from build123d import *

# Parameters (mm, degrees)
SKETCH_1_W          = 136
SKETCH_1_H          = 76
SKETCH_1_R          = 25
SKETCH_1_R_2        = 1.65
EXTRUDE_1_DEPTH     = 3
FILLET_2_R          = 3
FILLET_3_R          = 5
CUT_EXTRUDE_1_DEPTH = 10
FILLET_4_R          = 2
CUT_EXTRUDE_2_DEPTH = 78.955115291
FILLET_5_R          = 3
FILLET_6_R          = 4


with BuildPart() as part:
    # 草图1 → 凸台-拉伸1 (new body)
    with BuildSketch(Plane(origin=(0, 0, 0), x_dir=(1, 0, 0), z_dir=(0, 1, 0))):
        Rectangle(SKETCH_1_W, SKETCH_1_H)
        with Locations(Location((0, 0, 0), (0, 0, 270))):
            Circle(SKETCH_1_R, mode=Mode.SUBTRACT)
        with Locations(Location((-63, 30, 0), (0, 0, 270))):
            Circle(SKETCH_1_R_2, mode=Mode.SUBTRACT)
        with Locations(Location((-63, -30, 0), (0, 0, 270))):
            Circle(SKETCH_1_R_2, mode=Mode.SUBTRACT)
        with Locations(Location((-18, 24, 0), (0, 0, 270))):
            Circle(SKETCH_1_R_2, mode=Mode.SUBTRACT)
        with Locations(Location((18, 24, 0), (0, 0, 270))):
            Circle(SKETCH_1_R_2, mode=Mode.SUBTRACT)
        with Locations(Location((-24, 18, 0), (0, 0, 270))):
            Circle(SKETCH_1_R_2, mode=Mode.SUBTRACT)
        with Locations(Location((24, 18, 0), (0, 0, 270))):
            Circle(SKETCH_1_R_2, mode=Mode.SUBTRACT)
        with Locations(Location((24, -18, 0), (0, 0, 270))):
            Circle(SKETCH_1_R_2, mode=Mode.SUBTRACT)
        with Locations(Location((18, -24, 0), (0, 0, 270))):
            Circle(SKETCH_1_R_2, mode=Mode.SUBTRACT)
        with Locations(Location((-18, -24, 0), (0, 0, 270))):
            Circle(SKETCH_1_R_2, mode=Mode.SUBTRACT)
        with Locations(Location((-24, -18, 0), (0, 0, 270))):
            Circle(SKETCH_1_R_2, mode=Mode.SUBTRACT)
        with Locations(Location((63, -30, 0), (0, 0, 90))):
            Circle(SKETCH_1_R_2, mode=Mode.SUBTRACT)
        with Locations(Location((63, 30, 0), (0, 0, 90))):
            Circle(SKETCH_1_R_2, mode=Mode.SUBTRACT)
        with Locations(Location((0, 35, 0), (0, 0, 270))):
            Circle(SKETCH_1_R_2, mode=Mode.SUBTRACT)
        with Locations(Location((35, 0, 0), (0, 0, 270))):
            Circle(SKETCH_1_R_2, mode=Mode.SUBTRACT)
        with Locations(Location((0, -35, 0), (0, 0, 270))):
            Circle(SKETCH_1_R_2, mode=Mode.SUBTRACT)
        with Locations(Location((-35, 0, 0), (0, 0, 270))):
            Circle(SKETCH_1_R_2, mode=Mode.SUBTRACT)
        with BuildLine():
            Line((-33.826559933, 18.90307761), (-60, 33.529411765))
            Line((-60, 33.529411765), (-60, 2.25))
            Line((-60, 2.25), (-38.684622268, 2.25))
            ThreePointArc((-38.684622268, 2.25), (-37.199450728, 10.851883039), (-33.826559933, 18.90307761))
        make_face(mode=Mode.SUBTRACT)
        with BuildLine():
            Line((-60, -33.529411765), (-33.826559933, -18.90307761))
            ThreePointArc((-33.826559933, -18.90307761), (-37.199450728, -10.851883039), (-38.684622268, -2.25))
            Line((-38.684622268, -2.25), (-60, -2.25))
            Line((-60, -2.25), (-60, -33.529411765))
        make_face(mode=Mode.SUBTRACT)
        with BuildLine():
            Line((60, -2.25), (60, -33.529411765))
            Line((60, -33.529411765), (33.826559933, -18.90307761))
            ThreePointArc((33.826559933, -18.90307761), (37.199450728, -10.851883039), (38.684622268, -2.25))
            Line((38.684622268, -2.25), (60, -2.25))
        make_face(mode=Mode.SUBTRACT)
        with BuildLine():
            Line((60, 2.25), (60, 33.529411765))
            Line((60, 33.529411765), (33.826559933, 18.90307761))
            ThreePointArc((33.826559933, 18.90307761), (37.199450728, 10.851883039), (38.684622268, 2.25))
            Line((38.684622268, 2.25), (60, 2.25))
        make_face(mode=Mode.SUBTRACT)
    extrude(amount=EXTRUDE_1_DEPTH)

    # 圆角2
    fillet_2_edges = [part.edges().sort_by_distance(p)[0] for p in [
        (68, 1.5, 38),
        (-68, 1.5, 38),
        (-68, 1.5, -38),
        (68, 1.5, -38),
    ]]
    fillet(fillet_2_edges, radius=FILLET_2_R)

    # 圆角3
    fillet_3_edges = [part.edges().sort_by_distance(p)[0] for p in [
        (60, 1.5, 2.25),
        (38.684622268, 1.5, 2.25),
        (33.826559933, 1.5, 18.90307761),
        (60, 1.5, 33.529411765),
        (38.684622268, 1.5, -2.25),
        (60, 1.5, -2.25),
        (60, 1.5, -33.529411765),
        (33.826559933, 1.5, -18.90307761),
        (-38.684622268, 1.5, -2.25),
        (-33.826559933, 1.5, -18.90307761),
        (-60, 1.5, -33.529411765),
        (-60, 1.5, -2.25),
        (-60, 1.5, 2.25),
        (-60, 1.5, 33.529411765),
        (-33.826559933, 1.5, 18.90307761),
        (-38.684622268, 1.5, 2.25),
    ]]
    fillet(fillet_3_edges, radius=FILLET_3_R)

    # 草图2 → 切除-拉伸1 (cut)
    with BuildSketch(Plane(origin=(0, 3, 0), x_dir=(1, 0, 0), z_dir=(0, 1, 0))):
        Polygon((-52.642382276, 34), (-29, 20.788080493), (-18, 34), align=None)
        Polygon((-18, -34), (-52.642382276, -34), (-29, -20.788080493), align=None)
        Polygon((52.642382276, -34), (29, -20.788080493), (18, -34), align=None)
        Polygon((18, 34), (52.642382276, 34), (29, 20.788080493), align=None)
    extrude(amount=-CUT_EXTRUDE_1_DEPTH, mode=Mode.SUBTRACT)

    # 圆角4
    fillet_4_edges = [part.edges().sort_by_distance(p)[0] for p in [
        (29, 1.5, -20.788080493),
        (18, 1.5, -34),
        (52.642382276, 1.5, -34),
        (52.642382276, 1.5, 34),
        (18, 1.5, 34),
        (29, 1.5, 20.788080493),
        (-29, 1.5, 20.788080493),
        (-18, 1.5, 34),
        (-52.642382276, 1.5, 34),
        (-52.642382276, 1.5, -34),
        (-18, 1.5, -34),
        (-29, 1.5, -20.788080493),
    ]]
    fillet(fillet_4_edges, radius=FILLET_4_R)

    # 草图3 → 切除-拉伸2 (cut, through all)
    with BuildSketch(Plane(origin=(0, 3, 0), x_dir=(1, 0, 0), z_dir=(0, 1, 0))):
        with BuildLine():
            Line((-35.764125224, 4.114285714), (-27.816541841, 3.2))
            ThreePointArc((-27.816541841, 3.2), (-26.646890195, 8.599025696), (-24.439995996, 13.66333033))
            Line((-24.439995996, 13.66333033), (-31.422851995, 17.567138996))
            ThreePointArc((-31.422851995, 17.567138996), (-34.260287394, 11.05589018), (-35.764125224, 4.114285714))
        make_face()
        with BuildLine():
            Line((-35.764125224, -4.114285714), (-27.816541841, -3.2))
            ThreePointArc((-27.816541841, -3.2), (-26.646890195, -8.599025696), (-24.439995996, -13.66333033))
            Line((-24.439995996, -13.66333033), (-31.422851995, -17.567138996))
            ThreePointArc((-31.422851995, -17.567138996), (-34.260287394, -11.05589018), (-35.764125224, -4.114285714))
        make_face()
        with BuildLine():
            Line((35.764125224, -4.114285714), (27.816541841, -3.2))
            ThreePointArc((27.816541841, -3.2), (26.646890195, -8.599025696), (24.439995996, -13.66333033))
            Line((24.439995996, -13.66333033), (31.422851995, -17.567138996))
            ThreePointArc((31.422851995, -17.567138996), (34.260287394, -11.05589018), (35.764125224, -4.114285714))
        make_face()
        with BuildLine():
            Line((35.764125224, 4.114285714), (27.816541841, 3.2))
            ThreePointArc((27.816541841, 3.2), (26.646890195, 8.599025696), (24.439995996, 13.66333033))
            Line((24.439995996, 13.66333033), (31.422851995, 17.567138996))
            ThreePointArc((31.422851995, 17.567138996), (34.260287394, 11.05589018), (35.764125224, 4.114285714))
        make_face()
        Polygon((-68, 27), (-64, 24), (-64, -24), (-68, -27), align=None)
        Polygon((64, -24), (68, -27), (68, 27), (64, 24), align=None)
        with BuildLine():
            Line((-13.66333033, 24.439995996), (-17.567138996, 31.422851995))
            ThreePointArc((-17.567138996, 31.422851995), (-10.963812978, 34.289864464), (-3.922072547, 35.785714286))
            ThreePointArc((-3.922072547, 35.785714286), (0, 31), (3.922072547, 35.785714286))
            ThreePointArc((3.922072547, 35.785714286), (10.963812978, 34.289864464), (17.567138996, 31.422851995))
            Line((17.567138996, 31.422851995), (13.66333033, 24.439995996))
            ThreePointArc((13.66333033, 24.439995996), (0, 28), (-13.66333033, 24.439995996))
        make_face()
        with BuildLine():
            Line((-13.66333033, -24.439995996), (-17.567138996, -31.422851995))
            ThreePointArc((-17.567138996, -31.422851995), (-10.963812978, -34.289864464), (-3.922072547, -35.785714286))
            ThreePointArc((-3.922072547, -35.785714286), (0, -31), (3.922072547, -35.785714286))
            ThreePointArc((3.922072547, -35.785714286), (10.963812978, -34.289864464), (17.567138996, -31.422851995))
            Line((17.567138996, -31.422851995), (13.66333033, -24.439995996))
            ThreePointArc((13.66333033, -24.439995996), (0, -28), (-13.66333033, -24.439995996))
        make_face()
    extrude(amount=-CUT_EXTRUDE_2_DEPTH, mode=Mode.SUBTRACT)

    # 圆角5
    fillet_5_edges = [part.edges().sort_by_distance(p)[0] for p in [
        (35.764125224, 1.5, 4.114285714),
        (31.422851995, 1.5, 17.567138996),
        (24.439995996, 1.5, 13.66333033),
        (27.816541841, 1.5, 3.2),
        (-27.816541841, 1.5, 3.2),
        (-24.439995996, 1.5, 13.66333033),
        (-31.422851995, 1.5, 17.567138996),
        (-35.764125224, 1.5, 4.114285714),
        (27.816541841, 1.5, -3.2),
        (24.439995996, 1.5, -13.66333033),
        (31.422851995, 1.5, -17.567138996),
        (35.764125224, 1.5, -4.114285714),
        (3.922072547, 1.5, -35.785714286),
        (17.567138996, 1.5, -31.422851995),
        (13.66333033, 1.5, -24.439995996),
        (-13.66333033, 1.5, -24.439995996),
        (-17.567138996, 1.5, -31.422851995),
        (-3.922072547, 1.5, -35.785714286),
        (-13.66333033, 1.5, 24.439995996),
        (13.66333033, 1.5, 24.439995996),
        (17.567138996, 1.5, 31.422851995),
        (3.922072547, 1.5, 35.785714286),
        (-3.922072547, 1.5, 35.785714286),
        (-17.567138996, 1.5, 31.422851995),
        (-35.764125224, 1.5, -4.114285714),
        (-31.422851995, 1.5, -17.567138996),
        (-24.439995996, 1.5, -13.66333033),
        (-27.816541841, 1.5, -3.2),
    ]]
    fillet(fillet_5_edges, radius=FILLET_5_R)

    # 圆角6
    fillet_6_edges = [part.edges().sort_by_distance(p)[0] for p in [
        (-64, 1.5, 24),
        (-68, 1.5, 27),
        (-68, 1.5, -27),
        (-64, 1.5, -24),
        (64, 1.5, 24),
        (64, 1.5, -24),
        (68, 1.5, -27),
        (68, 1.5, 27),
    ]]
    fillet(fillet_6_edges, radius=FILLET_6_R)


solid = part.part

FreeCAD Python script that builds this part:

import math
import FreeCAD as App
import Part
import Sketcher
from FreeCAD import Vector
Q = App.Units.Quantity


def edges_at(feature, points):
    """Names of the edges that pass closest to the given points."""
    edges = feature.Shape.Edges
    near = lambda p: min(range(len(edges)), key=lambda i: edges[i].distToShape(Part.Vertex(*p))[0])
    return sorted({f"Edge{near(p) + 1}" for p in points})

doc = App.newDocument("Part")
body = doc.addObject("PartDesign::Body", "Body")

sketch1 = doc.addObject("Sketcher::SketchObject", "Sketch")
body.addObject(sketch1)
sketch1.AttachmentSupport = (doc.XZ_Plane, [""])
sketch1.MapMode = "FlatFace"
sketch1.addGeometry([
    Part.LineSegment(Vector(-68, -38, 0), Vector(-68, 38, 0)),
    Part.LineSegment(Vector(-68, 38, 0), Vector(68, 38, 0)),
    Part.LineSegment(Vector(68, 38, 0), Vector(68, -38, 0)),
    Part.LineSegment(Vector(68, -38, 0), Vector(-68, -38, 0)),
    Part.Circle(Vector(-63, 30, 0), Vector(0, 0, 1), 1.6),
    Part.Circle(Vector(-18, 24, 0), Vector(0, 0, 1), 1.6),
    Part.LineSegment(Vector(-33.8, 18.9, 0), Vector(-60, 33.5, 0)),
    Part.LineSegment(Vector(-60, 33.5, 0), Vector(-60, 2.2, 0)),
    Part.LineSegment(Vector(-60, 2.2, 0), Vector(-38.7, 2.2, 0)),
    Part.ArcOfCircle(Part.Circle(Vector(0, 0, 0), Vector(0, 0, 1), 38.8), math.radians(151), math.radians(177)),
    Part.Circle(Vector(-24, 18, 0), Vector(0, 0, 1), 1.6),
    Part.Circle(Vector(0, 35, 0), Vector(0, 0, 1), 1.6),
    Part.Circle(Vector(18, 24, 0), Vector(0, 0, 1), 1.6),
    Part.Circle(Vector(63, 30, 0), Vector(0, 0, 1), 1.6),
    Part.Circle(Vector(24, 18, 0), Vector(0, 0, 1), 1.6),
    Part.LineSegment(Vector(38.7, 2.2, 0), Vector(60, 2.2, 0)),
    Part.LineSegment(Vector(60, 2.2, 0), Vector(60, 33.5, 0)),
    Part.LineSegment(Vector(60, 33.5, 0), Vector(33.8, 18.9, 0)),
    Part.ArcOfCircle(Part.Circle(Vector(0, 0, 0), Vector(0, 0, 1), 38.8), math.radians(3), math.radians(29)),
    Part.Circle(Vector(-35, 0, 0), Vector(0, 0, 1), 1.6),
    Part.LineSegment(Vector(-60, -33.5, 0), Vector(-33.8, -18.9, 0)),
    Part.ArcOfCircle(Part.Circle(Vector(0, 0, 0), Vector(0, 0, 1), 38.8), math.radians(-177), math.radians(-151)),
    Part.LineSegment(Vector(-38.7, -2.2, 0), Vector(-60, -2.2, 0)),
    Part.LineSegment(Vector(-60, -2.2, 0), Vector(-60, -33.5, 0)),
    Part.Circle(Vector(-24, -18, 0), Vector(0, 0, 1), 1.6),
    Part.Circle(Vector(-63, -30, 0), Vector(0, 0, 1), 1.6),
    Part.Circle(Vector(-18, -24, 0), Vector(0, 0, 1), 1.6),
    Part.Circle(Vector(0, 0, 0), Vector(0, 0, 1), 25),
    Part.Circle(Vector(24, -18, 0), Vector(0, 0, 1), 1.6),
    Part.Circle(Vector(35, 0, 0), Vector(0, 0, 1), 1.6),
    Part.LineSegment(Vector(60, -33.5, 0), Vector(60, -2.2, 0)),
    Part.LineSegment(Vector(60, -2.2, 0), Vector(38.7, -2.2, 0)),
    Part.ArcOfCircle(Part.Circle(Vector(0, 0, 0), Vector(0, 0, 1), 38.8), math.radians(-29), math.radians(-3)),
    Part.LineSegment(Vector(33.8, -18.9, 0), Vector(60, -33.5, 0)),
    Part.Circle(Vector(18, -24, 0), Vector(0, 0, 1), 1.6),
    Part.Circle(Vector(0, -35, 0), Vector(0, 0, 1), 1.6),
    Part.Circle(Vector(63, -30, 0), Vector(0, 0, 1), 1.6),
], False)
sketch1.addConstraint([
    Sketcher.Constraint("Coincident", 0, 2, 1, 1),
    Sketcher.Constraint("Coincident", 1, 2, 2, 1),
    Sketcher.Constraint("Coincident", 2, 2, 3, 1),
    Sketcher.Constraint("Coincident", 3, 2, 0, 1),
    Sketcher.Constraint("Coincident", 6, 2, 7, 1),
    Sketcher.Constraint("Coincident", 7, 2, 8, 1),
    Sketcher.Constraint("Coincident", 8, 2, 9, 2),
    Sketcher.Constraint("Coincident", 9, 1, 6, 1),
    Sketcher.Constraint("Coincident", 15, 2, 16, 1),
    Sketcher.Constraint("Coincident", 16, 2, 17, 1),
    Sketcher.Constraint("Coincident", 17, 2, 18, 2),
    Sketcher.Constraint("Coincident", 18, 1, 15, 1),
    Sketcher.Constraint("Coincident", 20, 2, 21, 2),
    Sketcher.Constraint("Coincident", 21, 1, 22, 1),
    Sketcher.Constraint("Coincident", 22, 2, 23, 1),
    Sketcher.Constraint("Coincident", 23, 2, 20, 1),
    Sketcher.Constraint("Coincident", 30, 2, 31, 1),
    Sketcher.Constraint("Coincident", 31, 2, 32, 2),
    Sketcher.Constraint("Coincident", 32, 1, 33, 1),
    Sketcher.Constraint("Coincident", 33, 2, 30, 1),
    Sketcher.Constraint("Vertical", 0),
    Sketcher.Constraint("Horizontal", 1),
    Sketcher.Constraint("Vertical", 2),
    Sketcher.Constraint("Horizontal", 3),
    Sketcher.Constraint("Vertical", 7),
    Sketcher.Constraint("Horizontal", 8),
    Sketcher.Constraint("Horizontal", 15),
    Sketcher.Constraint("Vertical", 16),
    Sketcher.Constraint("Horizontal", 22),
    Sketcher.Constraint("Vertical", 23),
    Sketcher.Constraint("Vertical", 30),
    Sketcher.Constraint("Horizontal", 31),
    Sketcher.Constraint("Coincident", 9, 3, -1, 1),
    Sketcher.Constraint("Coincident", 18, 3, -1, 1),
    Sketcher.Constraint("Coincident", 21, 3, -1, 1),
    Sketcher.Constraint("Coincident", 27, 3, -1, 1),
    Sketcher.Constraint("Coincident", 32, 3, -1, 1),
    Sketcher.Constraint("Equal", 4, 5),
    Sketcher.Constraint("Equal", 5, 10),
    Sketcher.Constraint("Equal", 10, 11),
    Sketcher.Constraint("Equal", 11, 12),
    Sketcher.Constraint("Equal", 12, 13),
    Sketcher.Constraint("Equal", 13, 14),
    Sketcher.Constraint("Equal", 9, 18),
    Sketcher.Constraint("Equal", 14, 19),
    Sketcher.Constraint("Equal", 18, 21),
    Sketcher.Constraint("Equal", 19, 24),
    Sketcher.Constraint("Equal", 24, 25),
    Sketcher.Constraint("Equal", 25, 26),
    Sketcher.Constraint("Equal", 26, 28),
    Sketcher.Constraint("Equal", 28, 29),
    Sketcher.Constraint("Equal", 21, 32),
    Sketcher.Constraint("Equal", 29, 34),
    Sketcher.Constraint("Equal", 34, 35),
    Sketcher.Constraint("Equal", 35, 36),
    Sketcher.Constraint("Symmetric", 14, 3, 24, 3, -1, 1),
    Sketcher.Constraint("Symmetric", 13, 3, 25, 3, -1, 1),
    Sketcher.Constraint("Symmetric", 12, 3, 26, 3, -1, 1),
    Sketcher.Constraint("Symmetric", 10, 3, 28, 3, -1, 1),
    Sketcher.Constraint("Symmetric", 19, 3, 29, 3, -1, 1),
    Sketcher.Constraint("Symmetric", 5, 3, 34, 3, -1, 1),
    Sketcher.Constraint("Symmetric", 11, 3, 35, 3, -1, 1),
    Sketcher.Constraint("Symmetric", 4, 3, 36, 3, -1, 1),
    Sketcher.Constraint("Symmetric", 0, 2, 2, 2, -1, 1),
    Sketcher.Constraint("Symmetric", 15, 2, 22, 2, -1, 1),
    Sketcher.Constraint("Symmetric", 7, 2, 30, 2, -1, 1),
    Sketcher.Constraint("Symmetric", 5, 3, 12, 3, -2),
    Sketcher.Constraint("Symmetric", 4, 3, 13, 3, -2),
    Sketcher.Constraint("Symmetric", 10, 3, 14, 3, -2),
    Sketcher.Constraint("Symmetric", 7, 2, 15, 2, -2),
    Sketcher.Constraint("PointOnObject", 11, 3, -2),
    Sketcher.Constraint("PointOnObject", 19, 3, -1),
    Sketcher.Constraint("Parallel", 17, 20),
    Sketcher.Constraint("Parallel", 6, 33),
    Sketcher.Constraint("Horizontal", 6, 2, 16, 2),
    Sketcher.Constraint("Horizontal", 9, 1, 17, 2),
    Sketcher.Constraint("Horizontal", 20, 2, 32, 1),
    Sketcher.Constraint("Vertical", 9, 1, 20, 2),
    Sketcher.Constraint("Diameter", 27, Q("50 mm")),
    Sketcher.Constraint("Diameter", 4, Q("3.3 mm")),
    Sketcher.Constraint("DistanceX", 1, 1, 1, 2, Q("136 mm")),
    Sketcher.Constraint("DistanceY", 0, 1, 0, 2, Q("76 mm")),
    Sketcher.Constraint("Radius", 9, Q("38.75 mm")),
    Sketcher.Constraint("DistanceX", 4, 3, -1, 1, Q("63 mm")),
    Sketcher.Constraint("DistanceY", -1, 1, 4, 3, Q("30 mm")),
    Sketcher.Constraint("DistanceX", 5, 3, -1, 1, Q("18 mm")),
    Sketcher.Constraint("DistanceY", -1, 1, 5, 3, Q("24 mm")),
    Sketcher.Constraint("DistanceX", 10, 3, -1, 1, Q("24 mm")),
    Sketcher.Constraint("DistanceY", -1, 1, 10, 3, Q("18 mm")),
    Sketcher.Constraint("DistanceY", -1, 1, 11, 3, Q("35 mm")),
    Sketcher.Constraint("DistanceX", 19, 3, -1, 1, Q("35 mm")),
    Sketcher.Constraint("DistanceX", 6, 2, -1, 1, Q("60 mm")),
    Sketcher.Constraint("DistanceY", 21, 1, 8, 2, Q("4.5 mm")),
    Sketcher.Constraint("DistanceY", 7, 2, 7, 1, Q("31.279412 mm")),
    Sketcher.Constraint("DistanceX", 9, 1, -1, 1, Q("33.82656 mm")),
])
pad1 = doc.addObject("PartDesign::Pad", "Pad")
body.addObject(pad1)
pad1.Profile = sketch1
pad1.Length = 3
pad1.Reversed = True
doc.recompute()

fillet = doc.addObject("PartDesign::Fillet", "Fillet")
body.addObject(fillet)
fillet.Base = (pad1, edges_at(pad1, [
    (68, 1.5, 38),
    (-68, 1.5, 38),
    (-68, 1.5, -38),
    (68, 1.5, -38),
]))
fillet.Radius = 3
doc.recompute()

fillet2 = doc.addObject("PartDesign::Fillet", "Fillet001")
body.addObject(fillet2)
fillet2.Base = (fillet, edges_at(fillet, [
    (60, 1.5, 2.25),
    (38.685, 1.5, 2.25),
    (33.827, 1.5, 18.903),
    (60, 1.5, 33.529),
    (38.685, 1.5, -2.25),
    (60, 1.5, -2.25),
    (60, 1.5, -33.529),
    (33.827, 1.5, -18.903),
    (-38.685, 1.5, -2.25),
    (-33.827, 1.5, -18.903),
    (-60, 1.5, -33.529),
    (-60, 1.5, -2.25),
    (-60, 1.5, 2.25),
    (-60, 1.5, 33.529),
    (-33.827, 1.5, 18.903),
    (-38.685, 1.5, 2.25),
]))
fillet2.Radius = 5

sketch2 = doc.addObject("Sketcher::SketchObject", "Sketch001")
body.addObject(sketch2)
sketch2.AttachmentSupport = (doc.XZ_Plane, [""])
sketch2.MapMode = "FlatFace"
sketch2.AttachmentOffset = App.Placement(Vector(0, 0, -3), App.Rotation())
sketch2.addGeometry([
    Part.LineSegment(Vector(-53, -34, 0), Vector(-29, -21, 0)),
    Part.LineSegment(Vector(-29, -21, 0), Vector(-18, -34, 0)),
    Part.LineSegment(Vector(-18, -34, 0), Vector(-53, -34, 0)),
    Part.LineSegment(Vector(-53, 34, 0), Vector(-18, 34, 0)),
    Part.LineSegment(Vector(-18, 34, 0), Vector(-29, 21, 0)),
    Part.LineSegment(Vector(-29, 21, 0), Vector(-53, 34, 0)),
    Part.LineSegment(Vector(53, 34, 0), Vector(29, 21, 0)),
    Part.LineSegment(Vector(29, 21, 0), Vector(18, 34, 0)),
    Part.LineSegment(Vector(18, 34, 0), Vector(53, 34, 0)),
    Part.LineSegment(Vector(53, -34, 0), Vector(18, -34, 0)),
    Part.LineSegment(Vector(18, -34, 0), Vector(29, -21, 0)),
    Part.LineSegment(Vector(29, -21, 0), Vector(53, -34, 0)),
], False)
sketch2.addConstraint([
    Sketcher.Constraint("Coincident", 0, 2, 1, 1),
    Sketcher.Constraint("Coincident", 1, 2, 2, 1),
    Sketcher.Constraint("Coincident", 2, 2, 0, 1),
    Sketcher.Constraint("Coincident", 3, 2, 4, 1),
    Sketcher.Constraint("Coincident", 4, 2, 5, 1),
    Sketcher.Constraint("Coincident", 5, 2, 3, 1),
    Sketcher.Constraint("Coincident", 6, 2, 7, 1),
    Sketcher.Constraint("Coincident", 7, 2, 8, 1),
    Sketcher.Constraint("Coincident", 8, 2, 6, 1),
    Sketcher.Constraint("Coincident", 9, 2, 10, 1),
    Sketcher.Constraint("Coincident", 10, 2, 11, 1),
    Sketcher.Constraint("Coincident", 11, 2, 9, 1),
    Sketcher.Constraint("Horizontal", 2),
    Sketcher.Constraint("Horizontal", 3),
    Sketcher.Constraint("Horizontal", 8),
    Sketcher.Constraint("Horizontal", 9),
    Sketcher.Constraint("Symmetric", 0, 2, 6, 2, -1, 1),
    Sketcher.Constraint("Symmetric", 1, 2, 7, 2, -1, 1),
    Sketcher.Constraint("Symmetric", 3, 2, 9, 2, -1, 1),
    Sketcher.Constraint("Symmetric", 4, 2, 10, 2, -1, 1),
    Sketcher.Constraint("Symmetric", 4, 2, 6, 2, -2),
    Sketcher.Constraint("Symmetric", 3, 2, 7, 2, -2),
    Sketcher.Constraint("Parallel", 0, 6),
    Sketcher.Constraint("Parallel", 5, 11),
    Sketcher.Constraint("Vertical", 2, 2, 5, 2),
    Sketcher.Constraint("DistanceX", 0, 2, -1, 1, Q("29 mm")),
    Sketcher.Constraint("DistanceX", 1, 2, -1, 1, Q("18 mm")),
    Sketcher.Constraint("DistanceY", 1, 2, -1, 1, Q("34 mm")),
    Sketcher.Constraint("Distance", 0, Q("27.08352 mm")),
    Sketcher.Constraint("DistanceX", 2, 2, 2, 1, Q("34.642382 mm")),
])
pocket1 = doc.addObject("PartDesign::Pocket", "Pocket")
body.addObject(pocket1)
pocket1.Profile = sketch2
pocket1.Length = 10
pocket1.Reversed = True
doc.recompute()

fillet3 = doc.addObject("PartDesign::Fillet", "Fillet002")
body.addObject(fillet3)
fillet3.Base = (pocket1, edges_at(pocket1, [
    (29, 1.5, -20.788),
    (18, 1.5, -34),
    (52.642, 1.5, -34),
    (52.642, 1.5, 34),
    (18, 1.5, 34),
    (29, 1.5, 20.788),
    (-29, 1.5, 20.788),
    (-18, 1.5, 34),
    (-52.642, 1.5, 34),
    (-52.642, 1.5, -34),
    (-18, 1.5, -34),
    (-29, 1.5, -20.788),
]))
fillet3.Radius = 2

sketch3 = doc.addObject("Sketcher::SketchObject", "Sketch002")
body.addObject(sketch3)
sketch3.AttachmentSupport = (doc.XZ_Plane, [""])
sketch3.MapMode = "FlatFace"
sketch3.AttachmentOffset = App.Placement(Vector(0, 0, -3), App.Rotation())
sketch3.addGeometry([
    Part.LineSegment(Vector(-35.8, -4.1, 0), Vector(-27.8, -3.2, 0)),
    Part.ArcOfCircle(Part.Circle(Vector(0, 0, 0), Vector(0, 0, 1), 28), math.radians(-173), math.radians(-151)),
    Part.LineSegment(Vector(-24.4, -13.7, 0), Vector(-31.4, -17.6, 0)),
    Part.ArcOfCircle(Part.Circle(Vector(0, 0, 0), Vector(0, 0, 1), 36), math.radians(-173), math.radians(-151)),
    Part.LineSegment(Vector(-27.8, 3.2, 0), Vector(-35.8, 4.1, 0)),
    Part.ArcOfCircle(Part.Circle(Vector(0, 0, 0), Vector(0, 0, 1), 36), math.radians(151), math.radians(173)),
    Part.LineSegment(Vector(-31.4, 17.6, 0), Vector(-24.4, 13.7, 0)),
    Part.ArcOfCircle(Part.Circle(Vector(0, 0, 0), Vector(0, 0, 1), 28), math.radians(151), math.radians(173)),
    Part.LineSegment(Vector(35.8, 4.1, 0), Vector(27.8, 3.2, 0)),
    Part.ArcOfCircle(Part.Circle(Vector(0, 0, 0), Vector(0, 0, 1), 28), math.radians(7), math.radians(29)),
    Part.LineSegment(Vector(24.4, 13.7, 0), Vector(31.4, 17.6, 0)),
    Part.ArcOfCircle(Part.Circle(Vector(0, 0, 0), Vector(0, 0, 1), 36), math.radians(7), math.radians(29)),
    Part.LineSegment(Vector(27.8, -3.2, 0), Vector(35.8, -4.1, 0)),
    Part.ArcOfCircle(Part.Circle(Vector(0, 0, 0), Vector(0, 0, 1), 36), math.radians(-29), math.radians(-7)),
    Part.LineSegment(Vector(31.4, -17.6, 0), Vector(24.4, -13.7, 0)),
    Part.ArcOfCircle(Part.Circle(Vector(0, 0, 0), Vector(0, 0, 1), 28), math.radians(-29), math.radians(-7)),
    Part.LineSegment(Vector(-64, -24, 0), Vector(-68, -27, 0)),
    Part.LineSegment(Vector(-68, -27, 0), Vector(-68, 27, 0)),
    Part.LineSegment(Vector(-68, 27, 0), Vector(-64, 24, 0)),
    Part.LineSegment(Vector(-64, 24, 0), Vector(-64, -24, 0)),
    Part.LineSegment(Vector(64, 24, 0), Vector(68, 27, 0)),
    Part.LineSegment(Vector(68, 27, 0), Vector(68, -27, 0)),
    Part.LineSegment(Vector(68, -27, 0), Vector(64, -24, 0)),
    Part.LineSegment(Vector(64, -24, 0), Vector(64, 24, 0)),
    Part.LineSegment(Vector(-17.6, -31.4, 0), Vector(-13.7, -24.4, 0)),
    Part.ArcOfCircle(Part.Circle(Vector(0, 0, 0), Vector(0, 0, 1), 28), math.radians(-119), math.radians(-61)),
    Part.LineSegment(Vector(13.7, -24.4, 0), Vector(17.6, -31.4, 0)),
    Part.ArcOfCircle(Part.Circle(Vector(0, 0, 0), Vector(0, 0, 1), 36), math.radians(-84), math.radians(-61)),
    Part.ArcOfCircle(Part.Circle(Vector(0, -35, 0), Vector(0, 0, 1), 4), math.radians(-11), math.radians(191)),
    Part.ArcOfCircle(Part.Circle(Vector(0, 0, 0), Vector(0, 0, 1), 36), math.radians(-119), math.radians(-96)),
    Part.LineSegment(Vector(-13.7, 24.4, 0), Vector(-17.6, 31.4, 0)),
    Part.ArcOfCircle(Part.Circle(Vector(0, 0, 0), Vector(0, 0, 1), 36), math.radians(96), math.radians(119)),
    Part.ArcOfCircle(Part.Circle(Vector(0, 35, 0), Vector(0, 0, 1), 4), math.radians(169), math.radians(371)),
    Part.ArcOfCircle(Part.Circle(Vector(0, 0, 0), Vector(0, 0, 1), 36), math.radians(61), math.radians(84)),
    Part.LineSegment(Vector(17.6, 31.4, 0), Vector(13.7, 24.4, 0)),
    Part.ArcOfCircle(Part.Circle(Vector(0, 0, 0), Vector(0, 0, 1), 28), math.radians(61), math.radians(119)),
], False)
sketch3.addConstraint([
    Sketcher.Constraint("Coincident", 0, 2, 1, 1),
    Sketcher.Constraint("Coincident", 1, 2, 2, 1),
    Sketcher.Constraint("Coincident", 2, 2, 3, 2),
    Sketcher.Constraint("Coincident", 3, 1, 0, 1),
    Sketcher.Constraint("Coincident", 4, 2, 5, 2),
    Sketcher.Constraint("Coincident", 5, 1, 6, 1),
    Sketcher.Constraint("Coincident", 6, 2, 7, 1),
    Sketcher.Constraint("Coincident", 7, 2, 4, 1),
    Sketcher.Constraint("Coincident", 8, 2, 9, 1),
    Sketcher.Constraint("Coincident", 9, 2, 10, 1),
    Sketcher.Constraint("Coincident", 10, 2, 11, 2),
    Sketcher.Constraint("Coincident", 11, 1, 8, 1),
    Sketcher.Constraint("Coincident", 12, 2, 13, 2),
    Sketcher.Constraint("Coincident", 13, 1, 14, 1),
    Sketcher.Constraint("Coincident", 14, 2, 15, 1),
    Sketcher.Constraint("Coincident", 15, 2, 12, 1),
    Sketcher.Constraint("Coincident", 16, 2, 17, 1),
    Sketcher.Constraint("Coincident", 17, 2, 18, 1),
    Sketcher.Constraint("Coincident", 18, 2, 19, 1),
    Sketcher.Constraint("Coincident", 19, 2, 16, 1),
    Sketcher.Constraint("Coincident", 20, 2, 21, 1),
    Sketcher.Constraint("Coincident", 21, 2, 22, 1),
    Sketcher.Constraint("Coincident", 22, 2, 23, 1),
    Sketcher.Constraint("Coincident", 23, 2, 20, 1),
    Sketcher.Constraint("Coincident", 24, 2, 25, 1),
    Sketcher.Constraint("Coincident", 25, 2, 26, 1),
    Sketcher.Constraint("Coincident", 26, 2, 27, 2),
    Sketcher.Constraint("Coincident", 27, 1, 28, 1),
    Sketcher.Constraint("Coincident", 28, 2, 29, 2),
    Sketcher.Constraint("Coincident", 29, 1, 24, 1),
    Sketcher.Constraint("Coincident", 30, 2, 31, 2),
    Sketcher.Constraint("Coincident", 31, 1, 32, 1),
    Sketcher.Constraint("Coincident", 32, 2, 33, 2),
    Sketcher.Constraint("Coincident", 33, 1, 34, 1),
    Sketcher.Constraint("Coincident", 34, 2, 35, 1),
    Sketcher.Constraint("Coincident", 35, 2, 30, 1),
    Sketcher.Constraint("Vertical", 17),
    Sketcher.Constraint("Vertical", 19),
    Sketcher.Constraint("Vertical", 21),
    Sketcher.Constraint("Vertical", 23),
    Sketcher.Constraint("Coincident", 1, 3, -1, 1),
    Sketcher.Constraint("Coincident", 3, 3, -1, 1),
    Sketcher.Constraint("Coincident", 5, 3, -1, 1),
    Sketcher.Constraint("Coincident", 7, 3, -1, 1),
    Sketcher.Constraint("Coincident", 9, 3, -1, 1),
    Sketcher.Constraint("Coincident", 11, 3, -1, 1),
    Sketcher.Constraint("Coincident", 13, 3, -1, 1),
    Sketcher.Constraint("Coincident", 15, 3, -1, 1),
    Sketcher.Constraint("Coincident", 25, 3, -1, 1),
    Sketcher.Constraint("Coincident", 27, 3, -1, 1),
    Sketcher.Constraint("Coincident", 29, 3, -1, 1),
    Sketcher.Constraint("Coincident", 31, 3, -1, 1),
    Sketcher.Constraint("Coincident", 33, 3, -1, 1),
    Sketcher.Constraint("Coincident", 35, 3, -1, 1),
    Sketcher.Constraint("Equal", 3, 5),
    Sketcher.Constraint("Equal", 1, 7),
    Sketcher.Constraint("Equal", 7, 9),
    Sketcher.Constraint("Equal", 5, 11),
    Sketcher.Constraint("Equal", 11, 13),
    Sketcher.Constraint("Equal", 9, 15),
    Sketcher.Constraint("Equal", 15, 25),
    Sketcher.Constraint("Equal", 13, 27),
    Sketcher.Constraint("Equal", 27, 29),
    Sketcher.Constraint("Equal", 29, 31),
    Sketcher.Constraint("Equal", 28, 32),
    Sketcher.Constraint("Equal", 31, 33),
    Sketcher.Constraint("Equal", 25, 35),
    Sketcher.Constraint("Symmetric", 28, 3, 32, 3, -1, 1),
    Sketcher.Constraint("Symmetric", 16, 2, 20, 2, -1, 1),
    Sketcher.Constraint("Symmetric", 18, 2, 22, 2, -1, 1),
    Sketcher.Constraint("PointOnObject", 28, 3, -2),
    Sketcher.Constraint("Parallel", 0, 8),
    Sketcher.Constraint("Parallel", 2, 10),
    Sketcher.Constraint("Parallel", 4, 12),
    Sketcher.Constraint("Parallel", 6, 14),
    Sketcher.Constraint("Parallel", 16, 20),
    Sketcher.Constraint("Parallel", 18, 22),
    Sketcher.Constraint("Perpendicular", 14, 24),
    Sketcher.Constraint("Perpendicular", 10, 26),
    Sketcher.Constraint("Parallel", 26, 30),
    Sketcher.Constraint("Parallel", 24, 34),
    Sketcher.Constraint("Horizontal", 7, 2, 8, 2),
    Sketcher.Constraint("Horizontal", 6, 2, 9, 2),
    Sketcher.Constraint("Horizontal", 5, 1, 10, 2),
    Sketcher.Constraint("Horizontal", 4, 2, 11, 1),
    Sketcher.Constraint("Horizontal", 3, 1, 12, 2),
    Sketcher.Constraint("Horizontal", 2, 2, 13, 1),
    Sketcher.Constraint("Horizontal", 17, 2, 20, 2),
    Sketcher.Constraint("Horizontal", 19, 2, 22, 2),
    Sketcher.Constraint("Horizontal", 24, 2, 25, 2),
    Sketcher.Constraint("Horizontal", 30, 2, 33, 1),
    Sketcher.Constraint("Vertical", 3, 1, 4, 2),
    Sketcher.Constraint("Vertical", 2, 2, 5, 1),
    Sketcher.Constraint("Vertical", 29, 1, 30, 2),
    Sketcher.Constraint("Radius", 1, Q("28 mm")),
    Sketcher.Constraint("Radius", 3, Q("36 mm")),
    Sketcher.Constraint("Radius", 28, Q("4 mm")),
    Sketcher.Constraint("DistanceY", 17, 1, 17, 2, Q("54 mm")),
    Sketcher.Constraint("DistanceY", 19, 2, 19, 1, Q("48 mm")),
    Sketcher.Constraint("Distance", 16, Q("5 mm")),
    Sketcher.Constraint("DistanceY", 28, 3, -1, 1, Q("35 mm")),
    Sketcher.Constraint("DistanceX", 16, 2, -1, 1, Q("68 mm")),
    Sketcher.Constraint("DistanceY", 0, 2, -1, 1, Q("3.2 mm")),
    Sketcher.Constraint("DistanceY", 1, 2, -1, 1, Q("13.66333 mm")),
    Sketcher.Constraint("DistanceX", 2, 2, -1, 1, Q("31.422852 mm")),
    Sketcher.Constraint("DistanceX", 24, 2, -1, 1, Q("13.66333 mm")),
    Sketcher.Constraint("DistanceX", 3, 1, 1, 2, Q("11.324129 mm")),
])
pocket2 = doc.addObject("PartDesign::Pocket", "Pocket001")
body.addObject(pocket2)
pocket2.Profile = sketch3
pocket2.Type = "ThroughAll"
pocket2.Reversed = True
doc.recompute()

fillet4 = doc.addObject("PartDesign::Fillet", "Fillet003")
body.addObject(fillet4)
fillet4.Base = (pocket2, edges_at(pocket2, [
    (35.764, 1.5, 4.114),
    (31.423, 1.5, 17.567),
    (24.44, 1.5, 13.663),
    (27.817, 1.5, 3.2),
    (-27.817, 1.5, 3.2),
    (-24.44, 1.5, 13.663),
    (-31.423, 1.5, 17.567),
    (-35.764, 1.5, 4.114),
    (27.817, 1.5, -3.2),
    (24.44, 1.5, -13.663),
    (31.423, 1.5, -17.567),
    (35.764, 1.5, -4.114),
    (3.922, 1.5, -35.786),
    (17.567, 1.5, -31.423),
    (13.663, 1.5, -24.44),
    (-13.663, 1.5, -24.44),
    (-17.567, 1.5, -31.423),
    (-3.922, 1.5, -35.786),
    (-13.663, 1.5, 24.44),
    (13.663, 1.5, 24.44),
    (17.567, 1.5, 31.423),
    (3.922, 1.5, 35.786),
    (-3.922, 1.5, 35.786),
    (-17.567, 1.5, 31.423),
    (-35.764, 1.5, -4.114),
    (-31.423, 1.5, -17.567),
    (-24.44, 1.5, -13.663),
    (-27.817, 1.5, -3.2),
]))
fillet4.Radius = 3
doc.recompute()

fillet5 = doc.addObject("PartDesign::Fillet", "Fillet004")
body.addObject(fillet5)
fillet5.Base = (fillet4, edges_at(fillet4, [
    (-64, 1.5, 24),
    (-68, 1.5, 27),
    (-68, 1.5, -27),
    (-64, 1.5, -24),
    (64, 1.5, 24),
    (64, 1.5, -24),
    (68, 1.5, -27),
    (68, 1.5, 27),
]))
fillet5.Radius = 4

doc.recompute()
